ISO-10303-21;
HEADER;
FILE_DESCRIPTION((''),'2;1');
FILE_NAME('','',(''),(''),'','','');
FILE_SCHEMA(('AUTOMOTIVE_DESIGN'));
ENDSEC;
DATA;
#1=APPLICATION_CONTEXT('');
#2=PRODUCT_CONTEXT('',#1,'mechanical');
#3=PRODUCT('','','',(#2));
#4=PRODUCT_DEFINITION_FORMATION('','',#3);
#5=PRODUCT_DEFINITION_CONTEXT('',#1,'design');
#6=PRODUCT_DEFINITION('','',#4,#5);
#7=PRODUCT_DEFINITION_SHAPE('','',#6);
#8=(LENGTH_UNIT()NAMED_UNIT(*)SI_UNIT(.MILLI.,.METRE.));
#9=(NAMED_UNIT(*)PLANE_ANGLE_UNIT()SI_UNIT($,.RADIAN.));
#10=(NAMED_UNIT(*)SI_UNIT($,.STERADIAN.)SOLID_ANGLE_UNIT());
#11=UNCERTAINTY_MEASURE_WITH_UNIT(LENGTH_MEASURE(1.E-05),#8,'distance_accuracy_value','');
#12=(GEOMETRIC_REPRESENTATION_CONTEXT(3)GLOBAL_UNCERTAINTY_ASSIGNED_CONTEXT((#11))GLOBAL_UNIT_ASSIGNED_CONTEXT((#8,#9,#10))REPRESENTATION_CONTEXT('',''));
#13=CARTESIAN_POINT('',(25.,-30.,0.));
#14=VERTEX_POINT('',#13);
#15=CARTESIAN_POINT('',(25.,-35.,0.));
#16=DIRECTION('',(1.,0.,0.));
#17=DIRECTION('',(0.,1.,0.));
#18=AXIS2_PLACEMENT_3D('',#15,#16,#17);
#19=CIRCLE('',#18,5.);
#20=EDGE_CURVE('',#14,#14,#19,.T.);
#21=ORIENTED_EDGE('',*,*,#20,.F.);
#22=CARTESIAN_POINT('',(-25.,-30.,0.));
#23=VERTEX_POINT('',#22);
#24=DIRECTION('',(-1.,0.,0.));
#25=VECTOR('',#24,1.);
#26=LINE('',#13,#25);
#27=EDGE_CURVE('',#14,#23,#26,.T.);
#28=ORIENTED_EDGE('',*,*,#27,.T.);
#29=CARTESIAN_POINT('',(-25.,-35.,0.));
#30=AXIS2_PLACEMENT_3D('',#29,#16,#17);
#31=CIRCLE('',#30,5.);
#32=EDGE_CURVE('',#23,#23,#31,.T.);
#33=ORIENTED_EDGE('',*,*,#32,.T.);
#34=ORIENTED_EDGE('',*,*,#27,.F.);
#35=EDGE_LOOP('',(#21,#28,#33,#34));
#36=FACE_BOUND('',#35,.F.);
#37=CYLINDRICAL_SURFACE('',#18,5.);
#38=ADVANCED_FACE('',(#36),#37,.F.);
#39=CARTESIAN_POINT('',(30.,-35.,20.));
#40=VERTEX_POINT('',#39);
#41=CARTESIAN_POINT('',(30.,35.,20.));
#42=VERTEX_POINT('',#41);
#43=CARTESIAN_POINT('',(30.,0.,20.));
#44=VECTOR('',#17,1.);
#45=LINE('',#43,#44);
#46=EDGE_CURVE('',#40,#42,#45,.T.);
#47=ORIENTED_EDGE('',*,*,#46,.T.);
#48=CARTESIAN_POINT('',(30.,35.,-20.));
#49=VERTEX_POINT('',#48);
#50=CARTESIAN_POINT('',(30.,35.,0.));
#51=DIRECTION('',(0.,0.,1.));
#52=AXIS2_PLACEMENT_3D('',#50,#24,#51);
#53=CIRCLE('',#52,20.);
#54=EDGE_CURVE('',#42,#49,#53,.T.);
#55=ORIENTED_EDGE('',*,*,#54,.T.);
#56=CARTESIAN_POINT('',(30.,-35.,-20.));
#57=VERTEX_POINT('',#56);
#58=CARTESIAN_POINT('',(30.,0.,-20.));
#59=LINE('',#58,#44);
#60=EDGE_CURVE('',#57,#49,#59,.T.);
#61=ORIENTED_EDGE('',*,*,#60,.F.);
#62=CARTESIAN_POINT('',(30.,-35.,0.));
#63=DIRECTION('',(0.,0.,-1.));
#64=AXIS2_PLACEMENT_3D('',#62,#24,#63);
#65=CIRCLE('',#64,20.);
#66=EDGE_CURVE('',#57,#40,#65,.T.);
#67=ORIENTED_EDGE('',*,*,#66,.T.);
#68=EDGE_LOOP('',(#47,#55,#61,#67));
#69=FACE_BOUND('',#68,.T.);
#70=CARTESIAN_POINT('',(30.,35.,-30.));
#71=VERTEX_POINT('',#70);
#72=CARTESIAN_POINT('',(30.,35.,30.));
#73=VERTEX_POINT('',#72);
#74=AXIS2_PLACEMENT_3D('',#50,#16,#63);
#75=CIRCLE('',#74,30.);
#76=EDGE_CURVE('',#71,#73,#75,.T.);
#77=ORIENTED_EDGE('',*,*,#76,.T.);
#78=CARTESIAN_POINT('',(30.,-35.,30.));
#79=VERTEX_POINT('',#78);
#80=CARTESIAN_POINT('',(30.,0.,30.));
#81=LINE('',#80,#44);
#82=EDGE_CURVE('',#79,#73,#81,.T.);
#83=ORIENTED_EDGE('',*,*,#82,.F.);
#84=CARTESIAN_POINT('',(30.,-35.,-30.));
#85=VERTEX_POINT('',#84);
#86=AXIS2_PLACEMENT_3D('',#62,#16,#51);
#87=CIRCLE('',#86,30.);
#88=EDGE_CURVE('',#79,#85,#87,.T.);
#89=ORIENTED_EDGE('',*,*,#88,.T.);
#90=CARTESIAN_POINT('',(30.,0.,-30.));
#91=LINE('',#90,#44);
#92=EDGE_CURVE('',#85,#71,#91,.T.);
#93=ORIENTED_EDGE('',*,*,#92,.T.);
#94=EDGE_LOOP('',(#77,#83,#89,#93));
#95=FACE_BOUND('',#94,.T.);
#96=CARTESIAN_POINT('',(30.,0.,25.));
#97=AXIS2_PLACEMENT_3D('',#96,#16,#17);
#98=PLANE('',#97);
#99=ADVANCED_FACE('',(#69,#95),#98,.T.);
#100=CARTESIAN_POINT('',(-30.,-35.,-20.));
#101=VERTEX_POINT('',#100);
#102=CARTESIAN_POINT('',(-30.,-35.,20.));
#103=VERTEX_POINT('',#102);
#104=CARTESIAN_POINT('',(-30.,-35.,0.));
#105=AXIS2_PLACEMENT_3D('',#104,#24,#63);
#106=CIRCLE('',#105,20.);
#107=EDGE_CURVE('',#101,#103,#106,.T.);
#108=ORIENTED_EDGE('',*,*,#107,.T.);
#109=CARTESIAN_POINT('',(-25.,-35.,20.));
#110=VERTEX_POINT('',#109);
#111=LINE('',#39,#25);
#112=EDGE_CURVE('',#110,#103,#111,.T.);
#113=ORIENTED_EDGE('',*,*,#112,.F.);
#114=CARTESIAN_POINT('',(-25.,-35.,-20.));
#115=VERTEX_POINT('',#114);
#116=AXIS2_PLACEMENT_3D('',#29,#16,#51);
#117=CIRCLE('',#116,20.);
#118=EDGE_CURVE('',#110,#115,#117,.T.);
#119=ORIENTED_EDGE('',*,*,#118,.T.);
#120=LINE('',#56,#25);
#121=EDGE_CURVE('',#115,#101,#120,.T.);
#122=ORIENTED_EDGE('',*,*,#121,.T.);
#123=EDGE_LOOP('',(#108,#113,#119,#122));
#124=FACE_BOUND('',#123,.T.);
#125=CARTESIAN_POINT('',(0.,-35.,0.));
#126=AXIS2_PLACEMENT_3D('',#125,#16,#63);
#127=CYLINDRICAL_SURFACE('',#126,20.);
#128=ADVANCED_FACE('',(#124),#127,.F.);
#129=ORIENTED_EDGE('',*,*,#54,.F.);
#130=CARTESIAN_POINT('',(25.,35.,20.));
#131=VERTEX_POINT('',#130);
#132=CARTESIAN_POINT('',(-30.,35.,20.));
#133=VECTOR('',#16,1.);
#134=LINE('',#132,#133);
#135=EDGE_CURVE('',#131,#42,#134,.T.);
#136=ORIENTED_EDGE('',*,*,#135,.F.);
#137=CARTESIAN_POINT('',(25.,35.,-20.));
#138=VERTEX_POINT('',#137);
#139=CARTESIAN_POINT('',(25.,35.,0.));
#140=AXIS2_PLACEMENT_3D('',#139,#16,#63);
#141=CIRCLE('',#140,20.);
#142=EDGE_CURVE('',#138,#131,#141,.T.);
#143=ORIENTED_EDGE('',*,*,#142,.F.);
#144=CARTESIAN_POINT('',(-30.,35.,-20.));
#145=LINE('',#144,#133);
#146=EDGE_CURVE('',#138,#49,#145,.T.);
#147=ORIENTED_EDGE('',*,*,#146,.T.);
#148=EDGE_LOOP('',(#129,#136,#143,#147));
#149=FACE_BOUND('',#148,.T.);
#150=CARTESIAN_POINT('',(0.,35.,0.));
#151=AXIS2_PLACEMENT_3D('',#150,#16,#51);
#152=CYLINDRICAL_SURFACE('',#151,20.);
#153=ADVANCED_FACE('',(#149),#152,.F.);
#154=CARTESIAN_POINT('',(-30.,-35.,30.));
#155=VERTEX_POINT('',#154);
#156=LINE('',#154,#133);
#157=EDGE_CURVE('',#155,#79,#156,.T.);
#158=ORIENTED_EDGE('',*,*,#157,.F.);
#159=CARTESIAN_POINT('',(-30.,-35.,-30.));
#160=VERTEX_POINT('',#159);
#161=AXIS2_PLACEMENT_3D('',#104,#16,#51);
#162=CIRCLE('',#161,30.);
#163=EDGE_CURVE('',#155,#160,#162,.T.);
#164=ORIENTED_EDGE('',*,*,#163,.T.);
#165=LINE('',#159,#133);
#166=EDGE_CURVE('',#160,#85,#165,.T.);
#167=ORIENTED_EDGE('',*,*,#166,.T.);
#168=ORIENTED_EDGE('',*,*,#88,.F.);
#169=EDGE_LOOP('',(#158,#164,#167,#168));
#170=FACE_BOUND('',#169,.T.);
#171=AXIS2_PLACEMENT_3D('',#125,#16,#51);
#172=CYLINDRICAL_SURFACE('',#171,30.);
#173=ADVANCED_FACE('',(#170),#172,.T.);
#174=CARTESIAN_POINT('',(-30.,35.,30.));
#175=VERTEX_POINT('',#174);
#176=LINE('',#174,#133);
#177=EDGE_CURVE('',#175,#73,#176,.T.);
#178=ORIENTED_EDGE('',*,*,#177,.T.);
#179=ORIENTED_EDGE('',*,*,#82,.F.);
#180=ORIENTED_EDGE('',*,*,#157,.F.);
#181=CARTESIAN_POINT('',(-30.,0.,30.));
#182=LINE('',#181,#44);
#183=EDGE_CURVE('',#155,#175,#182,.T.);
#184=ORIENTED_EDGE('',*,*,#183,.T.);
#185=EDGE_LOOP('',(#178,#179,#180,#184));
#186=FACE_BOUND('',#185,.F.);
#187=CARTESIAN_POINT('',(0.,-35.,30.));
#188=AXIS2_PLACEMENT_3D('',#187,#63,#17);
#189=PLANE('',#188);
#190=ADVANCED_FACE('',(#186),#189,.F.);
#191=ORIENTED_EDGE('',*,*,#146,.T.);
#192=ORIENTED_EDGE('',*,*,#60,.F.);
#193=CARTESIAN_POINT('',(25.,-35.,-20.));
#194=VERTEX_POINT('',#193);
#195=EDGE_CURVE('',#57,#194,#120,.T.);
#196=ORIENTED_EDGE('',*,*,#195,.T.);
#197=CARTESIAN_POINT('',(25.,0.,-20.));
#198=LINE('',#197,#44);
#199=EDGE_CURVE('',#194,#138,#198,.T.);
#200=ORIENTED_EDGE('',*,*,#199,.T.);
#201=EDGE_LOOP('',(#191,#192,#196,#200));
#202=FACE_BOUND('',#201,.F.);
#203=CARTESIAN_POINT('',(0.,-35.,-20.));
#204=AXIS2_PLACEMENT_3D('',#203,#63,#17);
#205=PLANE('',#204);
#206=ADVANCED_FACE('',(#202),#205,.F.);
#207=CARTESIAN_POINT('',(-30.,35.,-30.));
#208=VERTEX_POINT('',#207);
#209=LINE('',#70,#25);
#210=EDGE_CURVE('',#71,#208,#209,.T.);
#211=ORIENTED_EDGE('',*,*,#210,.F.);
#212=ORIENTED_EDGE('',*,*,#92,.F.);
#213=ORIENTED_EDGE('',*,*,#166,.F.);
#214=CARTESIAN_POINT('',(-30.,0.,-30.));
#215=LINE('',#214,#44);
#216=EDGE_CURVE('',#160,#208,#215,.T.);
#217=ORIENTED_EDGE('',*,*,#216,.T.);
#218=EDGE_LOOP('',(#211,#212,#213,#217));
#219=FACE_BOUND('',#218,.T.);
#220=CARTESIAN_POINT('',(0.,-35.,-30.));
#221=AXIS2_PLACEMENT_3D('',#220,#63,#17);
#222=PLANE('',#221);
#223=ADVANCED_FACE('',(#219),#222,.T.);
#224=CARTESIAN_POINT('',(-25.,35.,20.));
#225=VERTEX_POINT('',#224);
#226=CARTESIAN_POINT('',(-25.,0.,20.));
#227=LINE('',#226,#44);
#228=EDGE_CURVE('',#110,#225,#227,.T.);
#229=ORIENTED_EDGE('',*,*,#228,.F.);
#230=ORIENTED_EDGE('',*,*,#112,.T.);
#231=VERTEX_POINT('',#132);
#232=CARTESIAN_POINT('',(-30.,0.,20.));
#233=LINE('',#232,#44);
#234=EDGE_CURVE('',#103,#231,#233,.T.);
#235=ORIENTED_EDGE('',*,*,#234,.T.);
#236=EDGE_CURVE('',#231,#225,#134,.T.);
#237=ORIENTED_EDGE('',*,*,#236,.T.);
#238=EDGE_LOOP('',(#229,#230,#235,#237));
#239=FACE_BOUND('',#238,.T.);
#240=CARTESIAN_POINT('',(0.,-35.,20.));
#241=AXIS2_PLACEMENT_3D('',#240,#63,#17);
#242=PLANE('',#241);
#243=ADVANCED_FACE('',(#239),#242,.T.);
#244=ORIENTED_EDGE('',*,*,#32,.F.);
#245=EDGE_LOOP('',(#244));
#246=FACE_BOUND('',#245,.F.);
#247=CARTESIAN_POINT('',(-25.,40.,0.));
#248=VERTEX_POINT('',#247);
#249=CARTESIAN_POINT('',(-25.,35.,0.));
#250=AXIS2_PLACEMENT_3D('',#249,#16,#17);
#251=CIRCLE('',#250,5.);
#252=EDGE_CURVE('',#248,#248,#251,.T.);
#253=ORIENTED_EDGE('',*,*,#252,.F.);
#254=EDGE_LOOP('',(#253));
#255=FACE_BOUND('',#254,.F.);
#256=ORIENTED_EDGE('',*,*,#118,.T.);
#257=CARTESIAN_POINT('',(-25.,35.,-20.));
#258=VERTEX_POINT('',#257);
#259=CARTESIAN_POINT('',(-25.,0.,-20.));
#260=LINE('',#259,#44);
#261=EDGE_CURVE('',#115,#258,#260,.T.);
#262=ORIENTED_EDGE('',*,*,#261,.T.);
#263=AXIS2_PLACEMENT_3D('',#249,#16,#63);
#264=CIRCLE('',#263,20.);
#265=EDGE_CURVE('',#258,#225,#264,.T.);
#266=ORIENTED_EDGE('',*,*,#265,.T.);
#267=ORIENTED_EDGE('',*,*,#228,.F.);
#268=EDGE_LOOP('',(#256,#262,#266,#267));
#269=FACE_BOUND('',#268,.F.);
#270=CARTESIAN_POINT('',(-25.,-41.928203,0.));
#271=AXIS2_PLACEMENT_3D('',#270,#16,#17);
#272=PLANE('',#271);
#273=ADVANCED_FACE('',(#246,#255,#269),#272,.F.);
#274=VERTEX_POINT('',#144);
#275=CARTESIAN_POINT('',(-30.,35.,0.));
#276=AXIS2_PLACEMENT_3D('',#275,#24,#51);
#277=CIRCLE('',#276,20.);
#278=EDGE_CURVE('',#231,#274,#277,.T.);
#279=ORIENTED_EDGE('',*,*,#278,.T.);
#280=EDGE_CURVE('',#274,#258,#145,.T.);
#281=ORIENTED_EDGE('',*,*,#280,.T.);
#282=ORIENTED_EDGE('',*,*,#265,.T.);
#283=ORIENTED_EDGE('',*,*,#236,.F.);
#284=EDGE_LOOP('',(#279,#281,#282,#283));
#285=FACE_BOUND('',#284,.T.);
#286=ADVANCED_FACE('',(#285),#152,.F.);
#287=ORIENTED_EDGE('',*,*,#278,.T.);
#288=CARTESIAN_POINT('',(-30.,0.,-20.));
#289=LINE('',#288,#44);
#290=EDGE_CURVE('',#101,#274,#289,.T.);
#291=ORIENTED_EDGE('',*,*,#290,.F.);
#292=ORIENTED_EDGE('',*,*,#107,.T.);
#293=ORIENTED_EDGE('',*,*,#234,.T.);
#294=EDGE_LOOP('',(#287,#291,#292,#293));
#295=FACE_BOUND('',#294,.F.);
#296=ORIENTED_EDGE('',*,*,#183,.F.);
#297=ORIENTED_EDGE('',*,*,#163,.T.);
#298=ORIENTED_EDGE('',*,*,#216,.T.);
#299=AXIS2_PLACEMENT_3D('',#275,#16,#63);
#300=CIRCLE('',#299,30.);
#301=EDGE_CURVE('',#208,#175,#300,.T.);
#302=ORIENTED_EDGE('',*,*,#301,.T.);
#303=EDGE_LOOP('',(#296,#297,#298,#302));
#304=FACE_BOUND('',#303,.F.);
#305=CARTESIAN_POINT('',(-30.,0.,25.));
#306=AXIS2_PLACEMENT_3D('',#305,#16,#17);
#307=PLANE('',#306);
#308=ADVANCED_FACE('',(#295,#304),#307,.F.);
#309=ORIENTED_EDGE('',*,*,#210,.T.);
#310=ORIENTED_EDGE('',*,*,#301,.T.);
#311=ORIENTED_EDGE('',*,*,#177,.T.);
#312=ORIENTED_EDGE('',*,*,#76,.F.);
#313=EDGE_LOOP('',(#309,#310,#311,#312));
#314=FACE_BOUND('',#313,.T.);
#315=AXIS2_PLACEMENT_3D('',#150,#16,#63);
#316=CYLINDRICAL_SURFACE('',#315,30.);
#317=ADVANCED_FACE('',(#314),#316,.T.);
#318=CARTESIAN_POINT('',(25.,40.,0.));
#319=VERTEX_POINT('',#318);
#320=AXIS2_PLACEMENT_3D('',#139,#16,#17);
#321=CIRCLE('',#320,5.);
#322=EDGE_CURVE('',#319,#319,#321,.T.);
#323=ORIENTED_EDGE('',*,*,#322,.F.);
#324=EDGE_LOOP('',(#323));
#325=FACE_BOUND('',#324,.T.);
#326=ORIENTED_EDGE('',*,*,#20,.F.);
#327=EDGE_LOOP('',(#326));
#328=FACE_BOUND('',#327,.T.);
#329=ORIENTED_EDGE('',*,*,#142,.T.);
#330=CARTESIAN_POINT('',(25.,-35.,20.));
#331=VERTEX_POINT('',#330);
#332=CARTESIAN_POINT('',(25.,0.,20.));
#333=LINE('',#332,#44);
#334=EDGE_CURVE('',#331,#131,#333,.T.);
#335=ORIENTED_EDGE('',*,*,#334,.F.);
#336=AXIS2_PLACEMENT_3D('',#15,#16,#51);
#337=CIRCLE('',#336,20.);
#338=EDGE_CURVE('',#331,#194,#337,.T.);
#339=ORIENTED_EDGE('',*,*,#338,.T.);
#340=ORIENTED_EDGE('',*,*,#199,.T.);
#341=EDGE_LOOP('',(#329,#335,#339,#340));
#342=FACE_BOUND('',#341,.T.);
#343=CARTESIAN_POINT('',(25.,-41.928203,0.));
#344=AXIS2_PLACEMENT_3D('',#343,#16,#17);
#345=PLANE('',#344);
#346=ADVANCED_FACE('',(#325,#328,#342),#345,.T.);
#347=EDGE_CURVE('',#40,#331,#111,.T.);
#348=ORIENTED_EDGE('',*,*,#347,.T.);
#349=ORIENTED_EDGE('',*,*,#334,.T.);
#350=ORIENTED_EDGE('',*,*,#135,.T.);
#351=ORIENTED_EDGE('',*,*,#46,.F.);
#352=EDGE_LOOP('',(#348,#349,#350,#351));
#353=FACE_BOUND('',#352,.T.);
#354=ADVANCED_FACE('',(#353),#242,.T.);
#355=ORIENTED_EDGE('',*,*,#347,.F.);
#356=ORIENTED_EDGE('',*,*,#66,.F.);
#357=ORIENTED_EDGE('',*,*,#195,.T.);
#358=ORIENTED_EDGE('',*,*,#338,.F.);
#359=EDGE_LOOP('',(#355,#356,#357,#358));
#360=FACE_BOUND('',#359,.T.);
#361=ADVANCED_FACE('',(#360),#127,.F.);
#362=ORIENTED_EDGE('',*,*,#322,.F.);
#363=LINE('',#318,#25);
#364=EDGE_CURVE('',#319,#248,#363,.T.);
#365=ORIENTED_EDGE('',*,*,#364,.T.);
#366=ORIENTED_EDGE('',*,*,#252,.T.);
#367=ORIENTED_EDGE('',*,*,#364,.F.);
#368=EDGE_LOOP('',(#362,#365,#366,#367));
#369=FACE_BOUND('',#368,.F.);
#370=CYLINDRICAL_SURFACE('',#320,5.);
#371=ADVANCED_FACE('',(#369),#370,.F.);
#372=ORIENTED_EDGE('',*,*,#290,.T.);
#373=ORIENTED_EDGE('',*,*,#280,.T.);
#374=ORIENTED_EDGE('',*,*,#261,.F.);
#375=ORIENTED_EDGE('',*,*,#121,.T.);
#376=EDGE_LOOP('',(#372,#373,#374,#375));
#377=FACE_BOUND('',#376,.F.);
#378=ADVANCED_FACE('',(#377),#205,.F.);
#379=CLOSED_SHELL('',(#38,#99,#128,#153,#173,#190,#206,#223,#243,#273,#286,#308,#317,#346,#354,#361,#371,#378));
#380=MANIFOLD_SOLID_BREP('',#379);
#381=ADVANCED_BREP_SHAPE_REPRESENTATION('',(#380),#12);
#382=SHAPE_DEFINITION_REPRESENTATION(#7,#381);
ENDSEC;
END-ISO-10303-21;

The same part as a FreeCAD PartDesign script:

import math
import FreeCAD as App
import Part
import Sketcher

V = App.Vector
Q = App.Units.Quantity

doc = App.newDocument("Part")
body = doc.addObject("PartDesign::Body", "Body")

sketch1 = doc.addObject("Sketcher::SketchObject", "Sketch")
body.addObject(sketch1)
sketch1.AttachmentSupport = (doc.YZ_Plane, [""])
sketch1.MapMode = "FlatFace"
sketch1.addGeometry([
    Part.ArcOfCircle(Part.Circle(V(35, 0, 0), V(0, 0, 1), 30), math.radians(-90), math.radians(90)),
    Part.LineSegment(V(35, 30, 0), V(-35, 30, 0)),
    Part.ArcOfCircle(Part.Circle(V(-35, 0, 0), V(0, 0, 1), 30), math.radians(90), math.radians(270)),
    Part.LineSegment(V(-35, -30, 0), V(35, -30, 0)),
    Part.LineSegment(V(-35, 20, 0), V(35, 20, 0)),
    Part.ArcOfCircle(Part.Circle(V(35, 0, 0), V(0, 0, 1), 20), math.radians(-90), math.radians(90)),
    Part.LineSegment(V(35, -20, 0), V(-35, -20, 0)),
    Part.ArcOfCircle(Part.Circle(V(-35, 0, 0), V(0, 0, 1), 20), math.radians(90), math.radians(270)),
], False)
sketch1.addConstraint([
    Sketcher.Constraint("Tangent", 0, 2, 1, 1),
    Sketcher.Constraint("Tangent", 1, 2, 2, 1),
    Sketcher.Constraint("Tangent", 2, 2, 3, 1),
    Sketcher.Constraint("Tangent", 3, 2, 0, 1),
    Sketcher.Constraint("Tangent", 4, 2, 5, 2),
    Sketcher.Constraint("Tangent", 5, 1, 6, 1),
    Sketcher.Constraint("Tangent", 6, 2, 7, 2),
    Sketcher.Constraint("Tangent", 7, 1, 4, 1),
    Sketcher.Constraint("Horizontal", 1),
    Sketcher.Constraint("Horizontal", 3),
    Sketcher.Constraint("Horizontal", 4),
    Sketcher.Constraint("Horizontal", 6),
    Sketcher.Constraint("Coincident", 5, 3, 0, 3),
    Sketcher.Constraint("Symmetric", 0, 3, 2, 3, -1, 1),
    Sketcher.Constraint("Vertical", 7, 3, 1, 2),
    Sketcher.Constraint("Radius", 0, Q("30 mm")),
    Sketcher.Constraint("Radius", 5, Q("20 mm")),
    Sketcher.Constraint("DistanceX", 1, 2, 1, 1, Q("70 mm")),
])
pad1 = doc.addObject("PartDesign::Pad", "Pad")
body.addObject(pad1)
pad1.Profile = sketch1
pad1.Length = 60
pad1.Midplane = True

sketch2 = doc.addObject("Sketcher::SketchObject", "Sketch001")
body.addObject(sketch2)
sketch2.AttachmentSupport = (doc.YZ_Plane, [""])
sketch2.MapMode = "FlatFace"
sketch2.addGeometry([
    Part.ArcOfCircle(Part.Circle(V(-35, 0, 0), V(0, 0, 1), 20), math.radians(90), math.radians(270)),
    Part.LineSegment(V(-35, -20, 0), V(35, -20, 0)),
    Part.ArcOfCircle(Part.Circle(V(35, 0, 0), V(0, 0, 1), 20), math.radians(-90), math.radians(90)),
    Part.LineSegment(V(35, 20, 0), V(-35, 20, 0)),
], False)
sketch2.addConstraint([
    Sketcher.Constraint("Tangent", 0, 2, 1, 1),
    Sketcher.Constraint("Tangent", 1, 2, 2, 1),
    Sketcher.Constraint("Tangent", 2, 2, 3, 1),
    Sketcher.Constraint("Tangent", 3, 2, 0, 1),
    Sketcher.Constraint("Horizontal", 1),
    Sketcher.Constraint("Horizontal", 3),
    Sketcher.Constraint("Symmetric", 0, 3, 2, 3, -1, 1),
    Sketcher.Constraint("Radius", 0, Q("20 mm")),
    Sketcher.Constraint("DistanceX", 1, 1, 1, 2, Q("70 mm")),
])
pad2 = doc.addObject("PartDesign::Pad", "Pad001")
body.addObject(pad2)
pad2.Profile = sketch2
pad2.Length = 50
pad2.Midplane = True

sketch3 = doc.addObject("Sketcher::SketchObject", "Sketch002")
body.addObject(sketch3)
sketch3.AttachmentSupport = (doc.YZ_Plane, [""])
sketch3.MapMode = "FlatFace"
sketch3.AttachmentOffset = App.Placement(V(0, 0, 25), App.Rotation())
sketch3.addGeometry([
    Part.Circle(V(-35, 0, 0), V(0, 0, 1), 5),
    Part.Circle(V(35, 0, 0), V(0, 0, 1), 5),
], False)
sketch3.addConstraint([
    Sketcher.Constraint("Equal", 0, 1),
    Sketcher.Constraint("Symmetric", 0, 3, 1, 3, -1, 1),
    Sketcher.Constraint("PointOnObject", 0, 3, -1),
    Sketcher.Constraint("Diameter", 0, Q("10 mm")),
    Sketcher.Constraint("DistanceX", 0, 3, -1, 1, Q("35 mm")),
])
pocket1 = doc.addObject("PartDesign::Pocket", "Pocket")
body.addObject(pocket1)
pocket1.Profile = sketch3
pocket1.Type = "ThroughAll"

doc.recompute()
